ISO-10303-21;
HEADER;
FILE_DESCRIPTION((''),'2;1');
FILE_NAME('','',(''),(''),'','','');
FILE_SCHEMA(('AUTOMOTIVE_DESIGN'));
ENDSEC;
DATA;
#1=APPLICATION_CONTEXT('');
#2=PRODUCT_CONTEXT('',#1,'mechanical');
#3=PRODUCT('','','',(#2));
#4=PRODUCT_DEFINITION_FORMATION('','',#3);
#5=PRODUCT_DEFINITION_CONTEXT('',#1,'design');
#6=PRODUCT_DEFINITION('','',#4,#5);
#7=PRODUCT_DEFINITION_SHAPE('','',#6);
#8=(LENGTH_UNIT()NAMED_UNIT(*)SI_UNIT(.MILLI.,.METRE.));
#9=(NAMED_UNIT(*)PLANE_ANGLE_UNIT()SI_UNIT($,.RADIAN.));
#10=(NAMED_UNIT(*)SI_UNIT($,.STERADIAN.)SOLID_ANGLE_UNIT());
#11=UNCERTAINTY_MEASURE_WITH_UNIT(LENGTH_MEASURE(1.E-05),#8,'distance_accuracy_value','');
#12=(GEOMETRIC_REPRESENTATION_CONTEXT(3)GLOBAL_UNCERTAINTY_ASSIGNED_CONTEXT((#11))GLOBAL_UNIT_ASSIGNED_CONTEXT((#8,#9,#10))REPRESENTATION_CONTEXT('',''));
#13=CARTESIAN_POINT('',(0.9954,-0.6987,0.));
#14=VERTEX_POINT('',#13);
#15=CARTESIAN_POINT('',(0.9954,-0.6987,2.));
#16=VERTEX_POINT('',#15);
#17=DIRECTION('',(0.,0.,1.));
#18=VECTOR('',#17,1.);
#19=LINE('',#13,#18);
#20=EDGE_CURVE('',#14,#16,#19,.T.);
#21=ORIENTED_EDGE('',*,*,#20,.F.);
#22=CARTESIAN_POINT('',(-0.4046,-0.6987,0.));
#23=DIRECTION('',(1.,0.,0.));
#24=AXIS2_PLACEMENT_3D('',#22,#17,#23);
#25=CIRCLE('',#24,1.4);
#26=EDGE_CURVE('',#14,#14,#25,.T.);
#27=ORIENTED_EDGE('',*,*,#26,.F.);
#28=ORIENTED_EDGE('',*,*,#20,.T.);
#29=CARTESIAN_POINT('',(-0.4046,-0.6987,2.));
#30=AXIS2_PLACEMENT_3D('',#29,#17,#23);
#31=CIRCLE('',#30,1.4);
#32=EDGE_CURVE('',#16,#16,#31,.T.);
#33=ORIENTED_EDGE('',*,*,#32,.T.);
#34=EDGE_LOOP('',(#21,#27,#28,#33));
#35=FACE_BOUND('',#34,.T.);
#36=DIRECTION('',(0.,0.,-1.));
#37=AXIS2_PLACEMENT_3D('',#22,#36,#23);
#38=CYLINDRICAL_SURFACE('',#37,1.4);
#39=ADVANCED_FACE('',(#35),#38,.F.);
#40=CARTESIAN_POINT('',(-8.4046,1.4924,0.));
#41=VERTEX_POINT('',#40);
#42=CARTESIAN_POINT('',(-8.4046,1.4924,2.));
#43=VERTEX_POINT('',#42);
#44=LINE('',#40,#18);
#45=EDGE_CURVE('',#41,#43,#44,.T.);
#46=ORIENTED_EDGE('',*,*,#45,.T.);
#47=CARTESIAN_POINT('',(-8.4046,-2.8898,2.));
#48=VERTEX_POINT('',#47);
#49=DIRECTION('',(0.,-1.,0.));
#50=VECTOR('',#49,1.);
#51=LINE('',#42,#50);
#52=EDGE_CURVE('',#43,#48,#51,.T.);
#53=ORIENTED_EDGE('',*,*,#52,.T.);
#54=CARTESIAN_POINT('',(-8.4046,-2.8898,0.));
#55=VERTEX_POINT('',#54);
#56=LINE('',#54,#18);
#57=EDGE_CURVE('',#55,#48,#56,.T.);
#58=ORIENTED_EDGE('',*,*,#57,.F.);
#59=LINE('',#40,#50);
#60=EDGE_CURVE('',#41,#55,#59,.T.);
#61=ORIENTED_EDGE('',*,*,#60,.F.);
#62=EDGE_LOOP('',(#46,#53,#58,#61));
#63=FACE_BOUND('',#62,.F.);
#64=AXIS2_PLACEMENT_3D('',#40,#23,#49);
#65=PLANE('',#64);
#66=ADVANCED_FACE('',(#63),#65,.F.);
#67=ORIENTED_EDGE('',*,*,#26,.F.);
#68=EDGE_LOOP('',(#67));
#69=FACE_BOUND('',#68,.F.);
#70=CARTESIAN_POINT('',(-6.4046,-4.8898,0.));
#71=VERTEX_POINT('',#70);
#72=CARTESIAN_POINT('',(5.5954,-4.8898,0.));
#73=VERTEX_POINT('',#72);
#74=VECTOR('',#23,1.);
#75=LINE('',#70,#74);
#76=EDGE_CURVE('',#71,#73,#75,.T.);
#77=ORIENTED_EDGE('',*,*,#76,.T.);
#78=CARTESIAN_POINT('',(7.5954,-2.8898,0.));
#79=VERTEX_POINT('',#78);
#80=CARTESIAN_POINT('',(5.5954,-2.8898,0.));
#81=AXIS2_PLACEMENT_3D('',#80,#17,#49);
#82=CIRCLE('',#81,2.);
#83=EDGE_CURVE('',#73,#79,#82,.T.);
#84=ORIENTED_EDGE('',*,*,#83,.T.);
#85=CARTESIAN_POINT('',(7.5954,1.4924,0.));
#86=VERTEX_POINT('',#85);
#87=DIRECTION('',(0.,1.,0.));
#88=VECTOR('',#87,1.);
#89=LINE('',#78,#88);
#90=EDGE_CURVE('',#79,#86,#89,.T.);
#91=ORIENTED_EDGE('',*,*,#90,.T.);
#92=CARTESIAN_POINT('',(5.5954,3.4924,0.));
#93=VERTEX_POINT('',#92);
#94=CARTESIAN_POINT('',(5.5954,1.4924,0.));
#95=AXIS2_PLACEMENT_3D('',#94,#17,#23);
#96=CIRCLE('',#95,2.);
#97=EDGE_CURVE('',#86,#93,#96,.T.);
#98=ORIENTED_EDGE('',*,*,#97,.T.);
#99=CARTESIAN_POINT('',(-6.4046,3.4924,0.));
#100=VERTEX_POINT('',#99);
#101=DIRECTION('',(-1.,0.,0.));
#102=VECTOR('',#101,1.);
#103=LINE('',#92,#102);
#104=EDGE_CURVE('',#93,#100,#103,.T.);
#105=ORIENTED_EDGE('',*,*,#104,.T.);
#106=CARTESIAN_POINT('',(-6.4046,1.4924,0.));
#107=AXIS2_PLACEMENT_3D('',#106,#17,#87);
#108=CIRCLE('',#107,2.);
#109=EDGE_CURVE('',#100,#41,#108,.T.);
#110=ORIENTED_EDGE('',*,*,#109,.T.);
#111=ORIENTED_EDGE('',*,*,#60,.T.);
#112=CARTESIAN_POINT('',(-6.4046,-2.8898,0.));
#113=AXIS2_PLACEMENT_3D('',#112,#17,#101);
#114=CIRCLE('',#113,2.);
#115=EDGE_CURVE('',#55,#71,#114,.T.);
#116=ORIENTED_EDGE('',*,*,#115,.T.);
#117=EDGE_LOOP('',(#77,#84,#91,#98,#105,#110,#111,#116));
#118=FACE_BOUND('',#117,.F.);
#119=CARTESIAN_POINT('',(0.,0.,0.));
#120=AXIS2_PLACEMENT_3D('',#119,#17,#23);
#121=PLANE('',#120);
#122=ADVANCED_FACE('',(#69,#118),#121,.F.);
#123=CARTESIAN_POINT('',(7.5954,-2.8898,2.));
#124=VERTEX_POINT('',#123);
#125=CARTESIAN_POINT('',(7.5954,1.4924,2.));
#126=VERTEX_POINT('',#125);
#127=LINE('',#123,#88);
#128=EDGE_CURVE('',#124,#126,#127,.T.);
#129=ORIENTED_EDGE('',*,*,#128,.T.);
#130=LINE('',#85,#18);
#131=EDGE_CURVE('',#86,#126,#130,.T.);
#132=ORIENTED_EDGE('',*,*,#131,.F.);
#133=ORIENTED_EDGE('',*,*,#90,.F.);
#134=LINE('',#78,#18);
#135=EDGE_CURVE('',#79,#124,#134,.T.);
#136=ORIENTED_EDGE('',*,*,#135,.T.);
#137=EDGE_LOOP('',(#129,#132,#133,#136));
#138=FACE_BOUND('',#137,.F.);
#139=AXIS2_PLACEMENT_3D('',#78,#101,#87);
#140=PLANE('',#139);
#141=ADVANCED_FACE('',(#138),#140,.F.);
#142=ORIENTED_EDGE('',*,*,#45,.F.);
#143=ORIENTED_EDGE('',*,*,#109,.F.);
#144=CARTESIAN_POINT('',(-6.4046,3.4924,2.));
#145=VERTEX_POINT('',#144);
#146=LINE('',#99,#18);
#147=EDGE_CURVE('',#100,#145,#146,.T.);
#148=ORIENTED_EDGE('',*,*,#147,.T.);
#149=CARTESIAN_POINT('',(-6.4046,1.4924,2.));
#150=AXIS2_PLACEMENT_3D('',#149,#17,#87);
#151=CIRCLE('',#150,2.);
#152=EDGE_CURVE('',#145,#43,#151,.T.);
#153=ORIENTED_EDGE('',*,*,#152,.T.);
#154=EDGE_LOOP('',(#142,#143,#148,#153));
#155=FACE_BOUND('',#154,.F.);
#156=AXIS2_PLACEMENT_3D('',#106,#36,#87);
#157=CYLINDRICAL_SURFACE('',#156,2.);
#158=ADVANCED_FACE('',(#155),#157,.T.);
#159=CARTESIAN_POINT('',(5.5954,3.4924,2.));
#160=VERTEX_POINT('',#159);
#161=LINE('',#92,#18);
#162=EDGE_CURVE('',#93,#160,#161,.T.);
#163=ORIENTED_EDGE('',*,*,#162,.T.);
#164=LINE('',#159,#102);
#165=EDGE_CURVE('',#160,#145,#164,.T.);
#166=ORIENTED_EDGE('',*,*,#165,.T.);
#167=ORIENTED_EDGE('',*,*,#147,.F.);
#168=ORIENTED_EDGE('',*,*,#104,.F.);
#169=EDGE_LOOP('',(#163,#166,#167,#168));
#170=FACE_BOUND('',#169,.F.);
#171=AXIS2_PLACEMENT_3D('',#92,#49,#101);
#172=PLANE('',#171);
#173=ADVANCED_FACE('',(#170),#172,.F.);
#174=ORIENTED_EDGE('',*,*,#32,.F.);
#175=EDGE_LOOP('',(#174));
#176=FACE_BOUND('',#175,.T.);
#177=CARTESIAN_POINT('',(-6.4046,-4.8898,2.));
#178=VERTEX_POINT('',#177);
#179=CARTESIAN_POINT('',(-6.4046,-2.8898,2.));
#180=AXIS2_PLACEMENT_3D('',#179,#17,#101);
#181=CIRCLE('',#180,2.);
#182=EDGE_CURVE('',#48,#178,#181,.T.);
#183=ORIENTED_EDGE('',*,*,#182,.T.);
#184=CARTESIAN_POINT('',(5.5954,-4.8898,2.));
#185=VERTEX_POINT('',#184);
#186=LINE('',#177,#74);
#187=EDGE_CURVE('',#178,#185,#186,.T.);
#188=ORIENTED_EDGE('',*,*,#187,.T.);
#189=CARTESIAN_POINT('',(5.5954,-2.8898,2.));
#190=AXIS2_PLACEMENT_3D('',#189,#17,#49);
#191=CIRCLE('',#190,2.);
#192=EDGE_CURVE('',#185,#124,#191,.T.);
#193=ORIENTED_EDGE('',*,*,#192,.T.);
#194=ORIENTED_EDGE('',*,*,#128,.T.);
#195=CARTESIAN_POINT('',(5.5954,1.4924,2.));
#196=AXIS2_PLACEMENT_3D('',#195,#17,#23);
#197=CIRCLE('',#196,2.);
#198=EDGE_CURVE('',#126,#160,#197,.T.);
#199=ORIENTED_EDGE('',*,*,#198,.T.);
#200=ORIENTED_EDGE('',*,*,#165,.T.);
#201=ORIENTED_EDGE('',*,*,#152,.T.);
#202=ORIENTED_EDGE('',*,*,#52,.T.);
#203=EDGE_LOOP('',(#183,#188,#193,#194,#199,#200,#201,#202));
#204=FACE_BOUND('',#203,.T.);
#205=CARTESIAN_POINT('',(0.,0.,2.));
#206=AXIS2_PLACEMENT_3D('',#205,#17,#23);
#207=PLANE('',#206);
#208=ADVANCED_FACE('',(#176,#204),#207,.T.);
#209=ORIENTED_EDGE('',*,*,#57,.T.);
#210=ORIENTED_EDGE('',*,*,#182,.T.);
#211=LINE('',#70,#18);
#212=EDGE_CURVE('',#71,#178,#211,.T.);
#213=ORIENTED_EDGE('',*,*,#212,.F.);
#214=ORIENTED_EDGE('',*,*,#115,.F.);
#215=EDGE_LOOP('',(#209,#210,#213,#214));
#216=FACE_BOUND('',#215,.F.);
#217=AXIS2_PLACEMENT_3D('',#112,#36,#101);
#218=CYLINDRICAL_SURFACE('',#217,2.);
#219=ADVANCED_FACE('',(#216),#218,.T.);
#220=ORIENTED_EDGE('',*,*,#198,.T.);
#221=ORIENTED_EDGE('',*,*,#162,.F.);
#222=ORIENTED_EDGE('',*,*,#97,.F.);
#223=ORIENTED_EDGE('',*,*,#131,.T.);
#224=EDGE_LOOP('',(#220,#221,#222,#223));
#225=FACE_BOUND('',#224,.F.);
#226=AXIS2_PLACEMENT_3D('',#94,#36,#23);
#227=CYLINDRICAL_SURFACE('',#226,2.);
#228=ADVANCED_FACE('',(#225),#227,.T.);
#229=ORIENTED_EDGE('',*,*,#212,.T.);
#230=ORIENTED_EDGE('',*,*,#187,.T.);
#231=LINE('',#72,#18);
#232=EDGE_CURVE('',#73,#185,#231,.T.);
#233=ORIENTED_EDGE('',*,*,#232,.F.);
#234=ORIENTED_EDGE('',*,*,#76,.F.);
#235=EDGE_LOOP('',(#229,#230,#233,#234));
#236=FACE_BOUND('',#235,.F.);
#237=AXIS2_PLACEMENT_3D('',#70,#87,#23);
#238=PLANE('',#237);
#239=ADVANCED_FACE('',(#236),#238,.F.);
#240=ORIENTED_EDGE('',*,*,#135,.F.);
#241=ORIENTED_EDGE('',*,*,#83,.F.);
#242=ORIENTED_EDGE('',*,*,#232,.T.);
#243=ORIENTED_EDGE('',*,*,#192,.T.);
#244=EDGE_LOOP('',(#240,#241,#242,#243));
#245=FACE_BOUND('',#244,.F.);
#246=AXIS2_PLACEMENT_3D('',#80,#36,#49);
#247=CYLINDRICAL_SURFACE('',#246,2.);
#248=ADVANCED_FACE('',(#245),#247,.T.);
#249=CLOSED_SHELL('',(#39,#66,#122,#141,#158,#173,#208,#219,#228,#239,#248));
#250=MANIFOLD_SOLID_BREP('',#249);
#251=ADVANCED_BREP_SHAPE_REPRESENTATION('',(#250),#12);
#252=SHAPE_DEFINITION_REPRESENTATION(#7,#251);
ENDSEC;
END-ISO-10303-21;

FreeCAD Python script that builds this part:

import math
import FreeCAD as App
import Part
import Sketcher

doc = App.newDocument("Part")
body = doc.addObject("PartDesign::Body", "Body")

sketch1 = body.newObject("Sketcher::SketchObject", "Sketch")
sketch1.AttachmentSupport = (doc.getObject("XY_Plane"), [""])
sketch1.MapMode = "FlatFace"
sketch1.addGeometry(Part.ArcOfCircle(Part.Circle(App.Vector(-6.4046, -2.8898, 0), App.Vector(0, 0, 1), 2), math.radians(180), math.radians(270)), False)
sketch1.addGeometry(Part.LineSegment(App.Vector(-6.4046, -4.8898, 0), App.Vector(5.5954, -4.8898, 0)), False)
sketch1.addGeometry(Part.ArcOfCircle(Part.Circle(App.Vector(5.5954, -2.8898, 0), App.Vector(0, 0, 1), 2), math.radians(-90), math.radians(0)), False)
sketch1.addGeometry(Part.LineSegment(App.Vector(7.5954, -2.8898, 0), App.Vector(7.5954, 1.4924, 0)), False)
sketch1.addGeometry(Part.ArcOfCircle(Part.Circle(App.Vector(5.5954, 1.4924, 0), App.Vector(0, 0, 1), 2), math.radians(0), math.radians(90)), False)
sketch1.addGeometry(Part.LineSegment(App.Vector(5.5954, 3.4924, 0), App.Vector(-6.4046, 3.4924, 0)), False)
sketch1.addGeometry(Part.ArcOfCircle(Part.Circle(App.Vector(-6.4046, 1.4924, 0), App.Vector(0, 0, 1), 2), math.radians(90), math.radians(180)), False)
sketch1.addGeometry(Part.LineSegment(App.Vector(-8.4046, 1.4924, 0), App.Vector(-8.4046, -2.8898, 0)), False)
sketch1.addGeometry(Part.Circle(App.Vector(-0.4046, -0.6987, 0), App.Vector(0, 0, 1), 1.4), False)
sketch1.addConstraint(Sketcher.Constraint("Tangent", 0, 2, 1, 1))
sketch1.addConstraint(Sketcher.Constraint("Tangent", 1, 2, 2, 1))
sketch1.addConstraint(Sketcher.Constraint("Tangent", 2, 2, 3, 1))
sketch1.addConstraint(Sketcher.Constraint("Tangent", 3, 2, 4, 1))
sketch1.addConstraint(Sketcher.Constraint("Tangent", 4, 2, 5, 1))
sketch1.addConstraint(Sketcher.Constraint("Tangent", 5, 2, 6, 1))
sketch1.addConstraint(Sketcher.Constraint("Tangent", 6, 2, 7, 1))
sketch1.addConstraint(Sketcher.Constraint("Tangent", 7, 2, 0, 1))
sketch1.addConstraint(Sketcher.Constraint("Horizontal", 1))
sketch1.addConstraint(Sketcher.Constraint("Vertical", 3))
sketch1.addConstraint(Sketcher.Constraint("Horizontal", 5))
sketch1.addConstraint(Sketcher.Constraint("Vertical", 7))
sketch1.addConstraint(Sketcher.Constraint("Equal", 0, 2))
sketch1.addConstraint(Sketcher.Constraint("Equal", 2, 4))
sketch1.addConstraint(Sketcher.Constraint("Equal", 4, 6))
sketch1.addConstraint(Sketcher.Constraint("Radius", 0, 2.0))
sketch1.addConstraint(Sketcher.Constraint("DistanceX", 8, 3, 2, 2, 8.0))
sketch1.addConstraint(Sketcher.Constraint("DistanceX", 6, 2, 8, 3, 8.0))
sketch1.addConstraint(Sketcher.Constraint("Diameter", 8, 2.8))
sketch1.addConstraint(Sketcher.Constraint("DistanceY", 0, 2, 8, 3, 4.191))
sketch1.addConstraint(Sketcher.Constraint("DistanceY", 8, 3, 4, 2, 4.191))
sketch1.addConstraint(Sketcher.Constraint("DistanceX", 0, 3, -1, 1, 6.4046))
sketch1.addConstraint(Sketcher.Constraint("DistanceY", 0, 3, -1, 1, 2.8898))
pad1 = body.newObject("PartDesign::Pad", "Pad")
pad1.Profile = sketch1
pad1.Length = 2

doc.recompute()
